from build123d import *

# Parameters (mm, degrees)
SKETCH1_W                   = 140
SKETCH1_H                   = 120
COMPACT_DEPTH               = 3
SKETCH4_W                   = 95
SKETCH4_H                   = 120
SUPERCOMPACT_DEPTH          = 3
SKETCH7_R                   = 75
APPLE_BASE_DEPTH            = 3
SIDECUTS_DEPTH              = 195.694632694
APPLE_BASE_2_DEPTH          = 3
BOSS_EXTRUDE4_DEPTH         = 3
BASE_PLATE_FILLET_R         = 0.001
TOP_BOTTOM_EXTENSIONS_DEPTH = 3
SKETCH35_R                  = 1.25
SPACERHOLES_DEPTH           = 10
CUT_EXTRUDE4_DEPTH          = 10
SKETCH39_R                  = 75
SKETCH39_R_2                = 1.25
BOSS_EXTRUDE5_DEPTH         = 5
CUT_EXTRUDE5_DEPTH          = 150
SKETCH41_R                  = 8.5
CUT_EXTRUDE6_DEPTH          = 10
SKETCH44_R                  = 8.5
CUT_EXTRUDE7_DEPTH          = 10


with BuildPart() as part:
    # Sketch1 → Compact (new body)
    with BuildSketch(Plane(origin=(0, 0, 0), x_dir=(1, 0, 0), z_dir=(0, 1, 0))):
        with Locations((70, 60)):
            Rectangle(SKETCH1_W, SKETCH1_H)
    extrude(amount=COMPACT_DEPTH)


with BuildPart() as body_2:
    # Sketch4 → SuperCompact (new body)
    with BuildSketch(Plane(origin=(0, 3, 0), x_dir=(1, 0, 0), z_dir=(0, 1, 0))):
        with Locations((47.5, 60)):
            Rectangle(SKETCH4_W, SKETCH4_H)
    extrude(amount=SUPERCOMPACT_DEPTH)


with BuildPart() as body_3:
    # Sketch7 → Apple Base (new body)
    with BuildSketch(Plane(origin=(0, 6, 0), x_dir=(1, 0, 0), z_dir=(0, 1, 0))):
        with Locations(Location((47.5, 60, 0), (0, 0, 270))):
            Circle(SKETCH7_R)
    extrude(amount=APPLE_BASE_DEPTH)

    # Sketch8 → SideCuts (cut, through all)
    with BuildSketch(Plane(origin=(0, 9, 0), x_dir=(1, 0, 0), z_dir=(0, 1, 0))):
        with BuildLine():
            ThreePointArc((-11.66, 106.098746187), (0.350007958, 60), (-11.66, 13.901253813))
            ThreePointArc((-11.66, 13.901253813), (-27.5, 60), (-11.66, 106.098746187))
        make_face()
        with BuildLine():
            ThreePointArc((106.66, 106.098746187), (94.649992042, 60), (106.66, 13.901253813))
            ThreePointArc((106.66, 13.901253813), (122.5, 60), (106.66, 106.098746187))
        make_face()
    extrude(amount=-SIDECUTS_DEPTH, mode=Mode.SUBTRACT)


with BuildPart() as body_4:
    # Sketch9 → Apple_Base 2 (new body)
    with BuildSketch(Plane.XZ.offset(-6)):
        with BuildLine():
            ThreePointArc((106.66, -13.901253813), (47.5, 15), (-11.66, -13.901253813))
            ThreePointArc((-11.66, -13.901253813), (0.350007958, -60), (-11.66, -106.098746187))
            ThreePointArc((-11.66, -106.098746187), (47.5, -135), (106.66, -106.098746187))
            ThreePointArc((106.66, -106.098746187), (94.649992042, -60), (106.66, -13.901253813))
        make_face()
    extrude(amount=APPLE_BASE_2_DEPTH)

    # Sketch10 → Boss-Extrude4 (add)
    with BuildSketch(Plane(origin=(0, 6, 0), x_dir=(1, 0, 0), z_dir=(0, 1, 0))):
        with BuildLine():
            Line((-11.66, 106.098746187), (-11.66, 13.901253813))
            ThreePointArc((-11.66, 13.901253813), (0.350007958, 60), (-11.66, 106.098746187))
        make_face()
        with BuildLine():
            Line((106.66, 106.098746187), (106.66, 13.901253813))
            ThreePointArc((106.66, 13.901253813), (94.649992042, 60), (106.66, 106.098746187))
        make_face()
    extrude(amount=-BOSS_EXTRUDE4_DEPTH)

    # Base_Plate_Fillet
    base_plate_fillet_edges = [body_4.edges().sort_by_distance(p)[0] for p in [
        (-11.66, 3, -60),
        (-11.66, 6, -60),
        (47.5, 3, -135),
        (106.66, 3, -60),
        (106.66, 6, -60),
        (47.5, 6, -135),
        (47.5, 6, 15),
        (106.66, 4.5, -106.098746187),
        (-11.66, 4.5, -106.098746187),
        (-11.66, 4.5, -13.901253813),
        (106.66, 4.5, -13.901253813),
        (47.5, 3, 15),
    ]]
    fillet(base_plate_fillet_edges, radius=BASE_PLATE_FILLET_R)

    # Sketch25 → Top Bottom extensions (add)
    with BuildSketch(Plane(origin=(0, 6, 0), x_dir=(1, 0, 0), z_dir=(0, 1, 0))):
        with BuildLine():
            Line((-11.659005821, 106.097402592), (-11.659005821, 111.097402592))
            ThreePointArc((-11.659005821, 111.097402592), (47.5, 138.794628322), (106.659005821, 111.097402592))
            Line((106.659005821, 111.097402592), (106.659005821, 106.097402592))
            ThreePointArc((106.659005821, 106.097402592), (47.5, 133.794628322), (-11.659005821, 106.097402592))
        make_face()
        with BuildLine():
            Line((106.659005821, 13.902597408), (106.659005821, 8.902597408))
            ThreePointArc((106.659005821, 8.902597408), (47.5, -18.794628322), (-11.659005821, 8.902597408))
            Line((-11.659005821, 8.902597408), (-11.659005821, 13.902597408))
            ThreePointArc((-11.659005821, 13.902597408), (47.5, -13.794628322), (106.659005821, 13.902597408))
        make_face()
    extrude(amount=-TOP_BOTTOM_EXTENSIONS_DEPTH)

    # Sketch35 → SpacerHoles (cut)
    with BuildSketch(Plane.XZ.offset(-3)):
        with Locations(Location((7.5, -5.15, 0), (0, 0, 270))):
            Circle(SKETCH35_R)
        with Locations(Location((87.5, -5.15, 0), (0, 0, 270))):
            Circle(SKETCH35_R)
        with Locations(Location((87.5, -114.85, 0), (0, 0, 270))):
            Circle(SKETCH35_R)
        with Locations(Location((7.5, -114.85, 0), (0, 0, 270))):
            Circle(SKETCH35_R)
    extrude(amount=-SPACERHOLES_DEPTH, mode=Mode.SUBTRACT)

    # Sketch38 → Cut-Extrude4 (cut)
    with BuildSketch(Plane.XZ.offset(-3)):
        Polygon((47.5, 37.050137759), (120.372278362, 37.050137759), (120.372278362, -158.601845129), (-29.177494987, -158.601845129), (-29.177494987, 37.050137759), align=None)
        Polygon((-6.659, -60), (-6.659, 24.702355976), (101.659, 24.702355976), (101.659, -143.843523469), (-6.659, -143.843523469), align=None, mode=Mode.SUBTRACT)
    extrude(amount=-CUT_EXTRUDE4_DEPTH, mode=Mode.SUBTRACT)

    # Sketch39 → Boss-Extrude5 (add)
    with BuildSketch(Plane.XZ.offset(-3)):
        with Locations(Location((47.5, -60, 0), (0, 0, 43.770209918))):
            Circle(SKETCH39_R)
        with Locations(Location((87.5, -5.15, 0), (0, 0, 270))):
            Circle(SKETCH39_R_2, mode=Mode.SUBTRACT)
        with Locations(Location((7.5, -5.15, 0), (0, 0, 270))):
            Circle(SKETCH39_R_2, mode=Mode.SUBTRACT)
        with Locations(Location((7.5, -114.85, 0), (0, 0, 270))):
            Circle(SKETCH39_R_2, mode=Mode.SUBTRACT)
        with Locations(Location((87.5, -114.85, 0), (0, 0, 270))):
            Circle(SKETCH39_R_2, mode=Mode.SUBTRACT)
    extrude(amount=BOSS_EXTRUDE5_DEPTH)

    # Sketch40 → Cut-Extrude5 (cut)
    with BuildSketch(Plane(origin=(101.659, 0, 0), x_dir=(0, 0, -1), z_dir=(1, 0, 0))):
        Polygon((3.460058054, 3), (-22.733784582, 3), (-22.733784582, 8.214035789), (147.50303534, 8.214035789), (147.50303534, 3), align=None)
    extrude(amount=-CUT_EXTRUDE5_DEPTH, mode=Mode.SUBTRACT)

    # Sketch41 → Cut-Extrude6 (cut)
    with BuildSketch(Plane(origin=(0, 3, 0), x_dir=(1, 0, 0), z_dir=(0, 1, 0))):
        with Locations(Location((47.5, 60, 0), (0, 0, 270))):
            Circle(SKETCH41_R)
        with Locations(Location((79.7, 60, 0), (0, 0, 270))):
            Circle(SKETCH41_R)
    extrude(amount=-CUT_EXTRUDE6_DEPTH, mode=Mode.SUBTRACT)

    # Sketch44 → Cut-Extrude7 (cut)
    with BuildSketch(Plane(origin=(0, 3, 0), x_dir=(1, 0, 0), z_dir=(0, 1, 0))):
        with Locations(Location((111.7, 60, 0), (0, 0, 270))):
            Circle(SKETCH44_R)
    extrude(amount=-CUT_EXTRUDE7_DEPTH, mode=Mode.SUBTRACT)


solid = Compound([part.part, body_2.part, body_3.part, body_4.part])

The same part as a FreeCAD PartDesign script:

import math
import FreeCAD as App
import Part
import Sketcher
from FreeCAD import Vector


def add_polygon(sketch, points):
    """Adds a closed chain of lines whose ends are joined by coincident constraints."""
    first, n = sketch.GeometryCount, len(points)
    for a, b in zip(points, points[1:] + points[:1]):
        sketch.addGeometry(Part.LineSegment(App.Vector(*a, 0), App.Vector(*b, 0)), False)
    for i in range(n):
        sketch.addConstraint(Sketcher.Constraint("Coincident", first + i, 2, first + (i + 1) % n, 1))

doc = App.newDocument("Part")
params = doc.addObject("Spreadsheet::Sheet", "Params")
for row, (alias, value) in enumerate([
    ("sketch1_width", "140 mm"),
    ("sketch1_height", "120 mm"),
    ("pad1_length", "3 mm"),
    ("sketch2_width", "95 mm"),
    ("sketch2_height", "120 mm"),
    ("pad2_length", "3 mm"),
    ("sketch3_diameter", "150 mm"),
    ("pad3_length", "3 mm"),
    ("sketch4_radius", "75 mm"),
    ("sketch5_radius", "75 mm"),
    ("pad4_length", "3 mm"),
    ("pad5_length", "3 mm"),
    ("fillet_radius", "0.001 mm"),
    ("sketch7_height", "5 mm"),
    ("pad6_length", "3 mm"),
    ("sketch8_diameter", "2.5 mm"),
    ("pocket2_length", "10 mm"),
    ("pocket3_length", "10 mm"),
    ("sketch10_diameter", "150 mm"),
    ("sketch10_diameter2", "2.5 mm"),
    ("pad7_length", "5 mm"),
    ("pocket4_length", "150 mm"),
    ("sketch12_diameter", "17 mm"),
    ("pocket5_length", "10 mm"),
    ("sketch13_diameter", "17 mm"),
    ("pocket6_length", "10 mm"),
], start=1):
    params.set(f"A{row}", alias)
    params.set(f"B{row}", "=" + value)
    params.setAlias(f"B{row}", alias)

body = doc.addObject("PartDesign::Body", "Body")

# Sketch on XZ plane
sketch1 = body.newObject("Sketcher::SketchObject", "Sketch")
sketch1.AttachmentSupport = (doc.getObject("XZ_Plane"), [""])
sketch1.MapMode = "FlatFace"
add_polygon(sketch1, [(0, -120), (0, 0), (140, 0), (140, -120)])  # lines 0-3
sketch1.addConstraint(Sketcher.Constraint("Vertical", 0))
sketch1.addConstraint(Sketcher.Constraint("Horizontal", 1))
sketch1.addConstraint(Sketcher.Constraint("Vertical", 2))
sketch1.addConstraint(Sketcher.Constraint("Horizontal", 3))
sketch1.addConstraint(Sketcher.Constraint("Coincident", 0, 2, -1, 1))
sketch1.addConstraint(Sketcher.Constraint("DistanceX", 1, 1, 1, 2, 140.0))
sketch1.addConstraint(Sketcher.Constraint("DistanceY", 0, 1, 0, 2, 120.0))
sketch1.setExpression("Constraints[9]", "Params.sketch1_width")
sketch1.setExpression("Constraints[10]", "Params.sketch1_height")
pad1 = body.newObject("PartDesign::Pad", "Pad")
pad1.Profile = sketch1
pad1.setExpression("Length", "Params.pad1_length")
pad1.Reversed = True
body2 = doc.addObject("PartDesign::Body", "Body001")

# Sketch on XZ plane
sketch2 = body2.newObject("Sketcher::SketchObject", "Sketch001")
sketch2.AttachmentSupport = (doc.getObject("XZ_Plane001"), [""])
sketch2.MapMode = "FlatFace"
sketch2.AttachmentOffset = App.Placement(Vector(0, 0, -3), App.Rotation())
add_polygon(sketch2, [(0, -120), (0, 0), (95, 0), (95, -120)])  # lines 0-3
sketch2.addConstraint(Sketcher.Constraint("Vertical", 0))
sketch2.addConstraint(Sketcher.Constraint("Horizontal", 1))
sketch2.addConstraint(Sketcher.Constraint("Vertical", 2))
sketch2.addConstraint(Sketcher.Constraint("Horizontal", 3))
sketch2.addConstraint(Sketcher.Constraint("Coincident", 0, 2, -1, 1))
sketch2.addConstraint(Sketcher.Constraint("DistanceX", 1, 1, 1, 2, 95.0))
sketch2.addConstraint(Sketcher.Constraint("DistanceY", 0, 1, 0, 2, 120.0))
sketch2.setExpression("Constraints[9]", "Params.sketch2_width")
sketch2.setExpression("Constraints[10]", "Params.sketch2_height")
pad2 = body2.newObject("PartDesign::Pad", "Pad001")
pad2.Profile = sketch2
pad2.setExpression("Length", "Params.pad2_length")
pad2.Reversed = True
body3 = doc.addObject("PartDesign::Body", "Body002")

# Sketch on XZ plane
sketch3 = body3.newObject("Sketcher::SketchObject", "Sketch002")
sketch3.AttachmentSupport = (doc.getObject("XZ_Plane002"), [""])
sketch3.MapMode = "FlatFace"
sketch3.AttachmentOffset = App.Placement(Vector(0, 0, -6), App.Rotation())
sketch3.addGeometry(Part.Circle(Vector(48, -60, 0), Vector(0, 0, 1), 75), False)
sketch3.addConstraint(Sketcher.Constraint("Diameter", 0, 150.0))
sketch3.addConstraint(Sketcher.Constraint("DistanceY", 0, 3, -1, 1, 60.0))
sketch3.addConstraint(Sketcher.Constraint("DistanceX", -1, 1, 0, 3, 47.5))
sketch3.setExpression("Constraints[0]", "Params.sketch3_diameter")
pad3 = body3.newObject("PartDesign::Pad", "Pad002")
pad3.Profile = sketch3
pad3.setExpression("Length", "Params.pad3_length")
pad3.Reversed = True

# Sketch on XZ plane
sketch4 = body3.newObject("Sketcher::SketchObject", "Sketch003")
sketch4.AttachmentSupport = (doc.getObject("XZ_Plane002"), [""])
sketch4.MapMode = "FlatFace"
sketch4.AttachmentOffset = App.Placement(Vector(0, 0, -9), App.Rotation())
sketch4.addGeometry(Part.ArcOfCircle(Part.Circle(Vector(-94, -60, 0), Vector(0, 0, 1), 94), math.radians(-29), math.radians(29)), False)
sketch4.addGeometry(Part.ArcOfCircle(Part.Circle(Vector(48, -60, 0), Vector(0, 0, 1), 75), math.radians(142), math.radians(218)), False)
sketch4.addGeometry(Part.ArcOfCircle(Part.Circle(Vector(189, -60, 0), Vector(0, 0, 1), 94), math.radians(151), math.radians(209)), False)
sketch4.addGeometry(Part.ArcOfCircle(Part.Circle(Vector(48, -60, 0), Vector(0, 0, 1), 75), math.radians(-38), math.radians(38)), False)
sketch4.addConstraint(Sketcher.Constraint("Coincident", 0, 1, 1, 2))
sketch4.addConstraint(Sketcher.Constraint("Coincident", 1, 1, 0, 2))
sketch4.addConstraint(Sketcher.Constraint("Coincident", 2, 1, 3, 2))
sketch4.addConstraint(Sketcher.Constraint("Coincident", 3, 1, 2, 2))
sketch4.addConstraint(Sketcher.Constraint("Coincident", 3, 3, 1, 3))
sketch4.addConstraint(Sketcher.Constraint("Equal", 0, 2))
sketch4.addConstraint(Sketcher.Constraint("Equal", 1, 3))
sketch4.addConstraint(Sketcher.Constraint("Horizontal", 0, 3, 1, 3))
sketch4.addConstraint(Sketcher.Constraint("Horizontal", 1, 3, 2, 3))
sketch4.addConstraint(Sketcher.Constraint("Horizontal", 1, 1, 2, 1))
sketch4.addConstraint(Sketcher.Constraint("Radius", 1, 75.0))
sketch4.addConstraint(Sketcher.Constraint("DistanceY", 0, 3, -1, 1, 60.0))
sketch4.addConstraint(Sketcher.Constraint("DistanceX", -1, 1, 1, 3, 47.5))
sketch4.addConstraint(Sketcher.Constraint("DistanceX", 0, 1, -1, 1, 11.66))
sketch4.addConstraint(Sketcher.Constraint("Radius", 0, 94.476819))
sketch4.setExpression("Constraints[10]", "Params.sketch4_radius")
pocket1 = body3.newObject("PartDesign::Pocket", "Pocket")
pocket1.Profile = sketch4
pocket1.Type = "ThroughAll"
pocket1.Reversed = True
body4 = doc.addObject("PartDesign::Body", "Body003")

# Sketch on XZ plane
sketch5 = body4.newObject("Sketcher::SketchObject", "Sketch004")
sketch5.AttachmentSupport = (doc.getObject("XZ_Plane003"), [""])
sketch5.MapMode = "FlatFace"
sketch5.AttachmentOffset = App.Placement(Vector(0, 0, -6), App.Rotation())
sketch5.addGeometry(Part.ArcOfCircle(Part.Circle(Vector(48, -60, 0), Vector(0, 0, 1), 75), math.radians(38), math.radians(142)), False)
sketch5.addGeometry(Part.ArcOfCircle(Part.Circle(Vector(-94, -60, 0), Vector(0, 0, 1), 94), math.radians(-29), math.radians(29)), False)
sketch5.addGeometry(Part.ArcOfCircle(Part.Circle(Vector(48, -60, 0), Vector(0, 0, 1), 75), math.radians(-142), math.radians(-38)), False)
sketch5.addGeometry(Part.ArcOfCircle(Part.Circle(Vector(189, -60, 0), Vector(0, 0, 1), 94), math.radians(151), math.radians(209)), False)
sketch5.addConstraint(Sketcher.Constraint("Coincident", 0, 2, 1, 2))
sketch5.addConstraint(Sketcher.Constraint("Coincident", 1, 1, 2, 1))
sketch5.addConstraint(Sketcher.Constraint("Coincident", 2, 2, 3, 2))
sketch5.addConstraint(Sketcher.Constraint("Coincident", 3, 1, 0, 1))
sketch5.addConstraint(Sketcher.Constraint("Coincident", 2, 3, 0, 3))
sketch5.addConstraint(Sketcher.Constraint("Equal", 0, 2))
sketch5.addConstraint(Sketcher.Constraint("Equal", 1, 3))
sketch5.addConstraint(Sketcher.Constraint("Horizontal", 0, 3, 1, 3))
sketch5.addConstraint(Sketcher.Constraint("Horizontal", 2, 3, 3, 3))
sketch5.addConstraint(Sketcher.Constraint("Horizontal", 1, 1, 2, 2))
sketch5.addConstraint(Sketcher.Constraint("Radius", 0, 75.0))
sketch5.addConstraint(Sketcher.Constraint("DistanceY", 0, 3, -1, 1, 60.0))
sketch5.addConstraint(Sketcher.Constraint("DistanceX", -1, 1, 0, 3, 47.5))
sketch5.addConstraint(Sketcher.Constraint("DistanceX", 0, 2, -1, 1, 11.66))
sketch5.addConstraint(Sketcher.Constraint("Radius", 1, 94.476819))
sketch5.setExpression("Constraints[10]", "Params.sketch5_radius")
pad4 = body4.newObject("PartDesign::Pad", "Pad003")
pad4.Profile = sketch5
pad4.setExpression("Length", "Params.pad4_length")

# Sketch on XZ plane
sketch6 = body4.newObject("Sketcher::SketchObject", "Sketch005")
sketch6.AttachmentSupport = (doc.getObject("XZ_Plane003"), [""])
sketch6.MapMode = "FlatFace"
sketch6.AttachmentOffset = App.Placement(Vector(0, 0, -6), App.Rotation())
sketch6.addGeometry(Part.LineSegment(Vector(-12, -106, 0), Vector(-12, -14, 0)), False)
sketch6.addGeometry(Part.ArcOfCircle(Part.Circle(Vector(-94, -60, 0), Vector(0, 0, 1), 94), math.radians(-29), math.radians(29)), False)
sketch6.addGeometry(Part.LineSegment(Vector(107, -14, 0), Vector(107, -106, 0)), False)
sketch6.addGeometry(Part.ArcOfCircle(Part.Circle(Vector(189, -60, 0), Vector(0, 0, 1), 94), math.radians(151), math.radians(209)), False)
sketch6.addConstraint(Sketcher.Constraint("Coincident", 0, 1, 1, 1))
sketch6.addConstraint(Sketcher.Constraint("Coincident", 1, 2, 0, 2))
sketch6.addConstraint(Sketcher.Constraint("Coincident", 2, 1, 3, 1))
sketch6.addConstraint(Sketcher.Constraint("Coincident", 3, 2, 2, 2))
sketch6.addConstraint(Sketcher.Constraint("Vertical", 0))
sketch6.addConstraint(Sketcher.Constraint("Vertical", 2))
sketch6.addConstraint(Sketcher.Constraint("Equal", 1, 3))
sketch6.addConstraint(Sketcher.Constraint("Horizontal", 1, 3, 3, 3))
sketch6.addConstraint(Sketcher.Constraint("Horizontal", 1, 2, 2, 1))
sketch6.addConstraint(Sketcher.Constraint("DistanceY", 1, 3, -1, 1, 60.0))
sketch6.addConstraint(Sketcher.Constraint("DistanceX", 0, 1, -1, 1, 11.66))
sketch6.addConstraint(Sketcher.Constraint("DistanceX", -1, 1, 2, 1, 106.66))
sketch6.addConstraint(Sketcher.Constraint("Radius", 1, 94.476819))
sketch6.addConstraint(Sketcher.Constraint("DistanceY", 0, 1, 0, 2, 92.197492))
pad5 = body4.newObject("PartDesign::Pad", "Pad004")
pad5.Profile = sketch6
pad5.setExpression("Length", "Params.pad5_length")
doc.recompute()

fillet = body4.newObject("PartDesign::Fillet", "Fillet")
fillet.Base = (pad5, ["Edge1"])
fillet.UseAllEdges = True
fillet.setExpression("Radius", "Params.fillet_radius")

# Sketch on XZ plane
sketch7 = body4.newObject("Sketcher::SketchObject", "Sketch006")
sketch7.AttachmentSupport = (doc.getObject("XZ_Plane003"), [""])
sketch7.MapMode = "FlatFace"
sketch7.AttachmentOffset = App.Placement(Vector(0, 0, -6), App.Rotation())
sketch7.addGeometry(Part.LineSegment(Vector(-12, -111, 0), Vector(-12, -106, 0)), False)
sketch7.addGeometry(Part.ArcOfCircle(Part.Circle(Vector(48, -57, 0), Vector(0, 0, 1), 77), math.radians(-140), math.radians(-40)), False)
sketch7.addGeometry(Part.LineSegment(Vector(107, -106, 0), Vector(107, -111, 0)), False)
sketch7.addGeometry(Part.ArcOfCircle(Part.Circle(Vector(48, -62, 0), Vector(0, 0, 1), 77), math.radians(-140), math.radians(-40)), False)
sketch7.addGeometry(Part.LineSegment(Vector(107, -9, 0), Vector(107, -14, 0)), False)
sketch7.addGeometry(Part.ArcOfCircle(Part.Circle(Vector(48, -63, 0), Vector(0, 0, 1), 77), math.radians(40), math.radians(140)), False)
sketch7.addGeometry(Part.LineSegment(Vector(-12, -14, 0), Vector(-12, -9, 0)), False)
sketch7.addGeometry(Part.ArcOfCircle(Part.Circle(Vector(48, -58, 0), Vector(0, 0, 1), 77), math.radians(40), math.radians(140)), False)
sketch7.addConstraint(Sketcher.Constraint("Coincident", 0, 2, 1, 1))
sketch7.addConstraint(Sketcher.Constraint("Coincident", 1, 2, 2, 1))
sketch7.addConstraint(Sketcher.Constraint("Coincident", 2, 2, 3, 2))
sketch7.addConstraint(Sketcher.Constraint("Coincident", 3, 1, 0, 1))
sketch7.addConstraint(Sketcher.Constraint("Coincident", 4, 2, 5, 1))
sketch7.addConstraint(Sketcher.Constraint("Coincident", 5, 2, 6, 1))
sketch7.addConstraint(Sketcher.Constraint("Coincident", 6, 2, 7, 2))
sketch7.addConstraint(Sketcher.Constraint("Coincident", 7, 1, 4, 1))
sketch7.addConstraint(Sketcher.Constraint("Vertical", 0))
sketch7.addConstraint(Sketcher.Constraint("Vertical", 2))
sketch7.addConstraint(Sketcher.Constraint("Vertical", 4))
sketch7.addConstraint(Sketcher.Constraint("Vertical", 6))
sketch7.addConstraint(Sketcher.Constraint("Equal", 1, 3))
sketch7.addConstraint(Sketcher.Constraint("Equal", 3, 5))
sketch7.addConstraint(Sketcher.Constraint("Equal", 5, 7))
sketch7.addConstraint(Sketcher.Constraint("Horizontal", 0, 2, 1, 2))
sketch7.addConstraint(Sketcher.Constraint("Horizontal", 2, 2, 3, 1))
sketch7.addConstraint(Sketcher.Constraint("Horizontal", 4, 2, 5, 2))
sketch7.addConstraint(Sketcher.Constraint("Horizontal", 6, 2, 7, 1))
sketch7.addConstraint(Sketcher.Constraint("Vertical", 3, 3, 5, 3))
sketch7.addConstraint(Sketcher.Constraint("Vertical", 2, 2, 4, 2))
sketch7.addConstraint(Sketcher.Constraint("Equal", 2, 4))
sketch7.addConstraint(Sketcher.Constraint("DistanceY", 0, 1, 0, 2, 5.0))
sketch7.addConstraint(Sketcher.Constraint("DistanceX", -1, 1, 1, 3, 47.5))
sketch7.addConstraint(Sketcher.Constraint("Radius", 1, 77.028009))
sketch7.addConstraint(Sketcher.Constraint("DistanceY", 1, 3, -1, 1, 56.76662))
sketch7.addConstraint(Sketcher.Constraint("DistanceY", 5, 3, -1, 1, 63.23338))
sketch7.addConstraint(Sketcher.Constraint("DistanceX", 0, 2, 1, 2, 118.318012))
sketch7.setExpression("Constraints[22]", "Params.sketch7_height")
pad6 = body4.newObject("PartDesign::Pad", "Pad005")
pad6.Profile = sketch7
pad6.setExpression("Length", "Params.pad6_length")

# Sketch on XZ plane
sketch8 = body4.newObject("Sketcher::SketchObject", "Sketch007")
sketch8.AttachmentSupport = (doc.getObject("XZ_Plane003"), [""])
sketch8.MapMode = "FlatFace"
sketch8.AttachmentOffset = App.Placement(Vector(0, 0, -3), App.Rotation())
sketch8.addGeometry(Part.Circle(Vector(7.5, -5.2, 0), Vector(0, 0, 1), 1.2), False)
sketch8.addGeometry(Part.Circle(Vector(87.5, -5.2, 0), Vector(0, 0, 1), 1.2), False)
sketch8.addGeometry(Part.Circle(Vector(87.5, -114.8, 0), Vector(0, 0, 1), 1.2), False)
sketch8.addGeometry(Part.Circle(Vector(7.5, -114.8, 0), Vector(0, 0, 1), 1.2), False)
sketch8.addConstraint(Sketcher.Constraint("Equal", 0, 1))
sketch8.addConstraint(Sketcher.Constraint("Equal", 1, 2))
sketch8.addConstraint(Sketcher.Constraint("Equal", 2, 3))
sketch8.addConstraint(Sketcher.Constraint("Horizontal", 0, 3, 1, 3))
sketch8.addConstraint(Sketcher.Constraint("Horizontal", 2, 3, 3, 3))
sketch8.addConstraint(Sketcher.Constraint("Vertical", 1, 3, 2, 3))
sketch8.addConstraint(Sketcher.Constraint("Vertical", 0, 3, 3, 3))
sketch8.addConstraint(Sketcher.Constraint("Diameter", 0, 2.5))
sketch8.addConstraint(Sketcher.Constraint("DistanceX", 0, 3, 1, 3, 80.0))
sketch8.addConstraint(Sketcher.Constraint("DistanceX", -1, 1, 0, 3, 7.5))
sketch8.addConstraint(Sketcher.Constraint("DistanceY", 2, 3, 1, 3, 109.7))
sketch8.addConstraint(Sketcher.Constraint("DistanceY", 0, 3, -1, 1, 5.15))
sketch8.setExpression("Constraints[7]", "Params.sketch8_diameter")
pocket2 = body4.newObject("PartDesign::Pocket", "Pocket001")
pocket2.Profile = sketch8
pocket2.setExpression("Length", "Params.pocket2_length")

# Sketch on XZ plane
sketch9 = body4.newObject("Sketcher::SketchObject", "Sketch008")
sketch9.AttachmentSupport = (doc.getObject("XZ_Plane003"), [""])
sketch9.MapMode = "FlatFace"
sketch9.AttachmentOffset = App.Placement(Vector(0, 0, -3), App.Rotation())
add_polygon(sketch9, [(120, 37), (-29, 37), (-29, -159), (120, -159)])  # lines 0-3
add_polygon(sketch9, [(-7, 25), (102, 25), (102, -144), (-7, -144)])  # lines 4-7
sketch9.addConstraint(Sketcher.Constraint("Horizontal", 0))
sketch9.addConstraint(Sketcher.Constraint("Vertical", 1))
sketch9.addConstraint(Sketcher.Constraint("Horizontal", 2))
sketch9.addConstraint(Sketcher.Constraint("Vertical", 3))
sketch9.addConstraint(Sketcher.Constraint("Horizontal", 4))
sketch9.addConstraint(Sketcher.Constraint("Vertical", 5))
sketch9.addConstraint(Sketcher.Constraint("Horizontal", 6))
sketch9.addConstraint(Sketcher.Constraint("Vertical", 7))
sketch9.addConstraint(Sketcher.Constraint("DistanceX", 4, 1, 4, 2, 108.318))
sketch9.addConstraint(Sketcher.Constraint("DistanceX", -1, 1, 4, 2, 101.659))
sketch9.addConstraint(Sketcher.Constraint("DistanceY", 5, 2, 5, 1, 168.545879))
sketch9.addConstraint(Sketcher.Constraint("DistanceY", 2, 2, 4, 2, 183.304201))
sketch9.addConstraint(Sketcher.Constraint("DistanceX", 0, 2, 0, 1, 149.549773))
sketch9.addConstraint(Sketcher.Constraint("DistanceY", 1, 2, 1, 1, 195.651983))
sketch9.addConstraint(Sketcher.Constraint("DistanceX", -1, 1, 2, 2, 120.372278))
sketch9.addConstraint(Sketcher.Constraint("DistanceY", -1, 1, 0, 2, 37.050138))
pocket3 = body4.newObject("PartDesign::Pocket", "Pocket002")
pocket3.Profile = sketch9
pocket3.setExpression("Length", "Params.pocket3_length")

# Sketch on XZ plane
sketch10 = body4.newObject("Sketcher::SketchObject", "Sketch009")
sketch10.AttachmentSupport = (doc.getObject("XZ_Plane003"), [""])
sketch10.MapMode = "FlatFace"
sketch10.AttachmentOffset = App.Placement(Vector(0, 0, -3), App.Rotation())
sketch10.addGeometry(Part.Circle(Vector(47.5, -60, 0), Vector(0, 0, 1), 75), False)
sketch10.addGeometry(Part.Circle(Vector(87.5, -114.8, 0), Vector(0, 0, 1), 1.2), False)
sketch10.addGeometry(Part.Circle(Vector(7.5, -114.8, 0), Vector(0, 0, 1), 1.2), False)
sketch10.addGeometry(Part.Circle(Vector(87.5, -5.2, 0), Vector(0, 0, 1), 1.2), False)
sketch10.addGeometry(Part.Circle(Vector(7.5, -5.2, 0), Vector(0, 0, 1), 1.2), False)
sketch10.addConstraint(Sketcher.Constraint("Equal", 1, 2))
sketch10.addConstraint(Sketcher.Constraint("Equal", 2, 3))
sketch10.addConstraint(Sketcher.Constraint("Equal", 3, 4))
sketch10.addConstraint(Sketcher.Constraint("Horizontal", 1, 3, 2, 3))
sketch10.addConstraint(Sketcher.Constraint("Horizontal", 3, 3, 4, 3))
sketch10.addConstraint(Sketcher.Constraint("Vertical", 1, 3, 3, 3))
sketch10.addConstraint(Sketcher.Constraint("Vertical", 2, 3, 4, 3))
sketch10.addConstraint(Sketcher.Constraint("Diameter", 0, 150.0))
sketch10.addConstraint(Sketcher.Constraint("Diameter", 1, 2.5))
sketch10.addConstraint(Sketcher.Constraint("DistanceY", 0, 3, -1, 1, 60.0))
sketch10.addConstraint(Sketcher.Constraint("DistanceX", 0, 3, 1, 3, 40.0))
sketch10.addConstraint(Sketcher.Constraint("DistanceX", 2, 3, 0, 3, 40.0))
sketch10.addConstraint(Sketcher.Constraint("DistanceX", -1, 1, 0, 3, 47.5))
sketch10.addConstraint(Sketcher.Constraint("DistanceY", 1, 3, 3, 3, 109.7))
sketch10.addConstraint(Sketcher.Constraint("DistanceY", 1, 3, -1, 1, 114.85))
sketch10.setExpression("Constraints[7]", "Params.sketch10_diameter")
sketch10.setExpression("Constraints[8]", "Params.sketch10_diameter2")
pad7 = body4.newObject("PartDesign::Pad", "Pad006")
pad7.Profile = sketch10
pad7.setExpression("Length", "Params.pad7_length")

# Sketch on YZ plane
sketch11 = body4.newObject("Sketcher::SketchObject", "Sketch010")
sketch11.AttachmentSupport = (doc.getObject("YZ_Plane003"), [""])
sketch11.MapMode = "FlatFace"
sketch11.AttachmentOffset = App.Placement(Vector(0, 0, 101.659), App.Rotation())
add_polygon(sketch11, [(3, 23), (3, -148), (8, -148), (8, 23)])  # lines 0-3
sketch11.addConstraint(Sketcher.Constraint("Vertical", 0))
sketch11.addConstraint(Sketcher.Constraint("Horizontal", 1))
sketch11.addConstraint(Sketcher.Constraint("Vertical", 2))
sketch11.addConstraint(Sketcher.Constraint("Horizontal", 3))
sketch11.addConstraint(Sketcher.Constraint("DistanceX", -1, 1, 0, 2, 3.0))
sketch11.addConstraint(Sketcher.Constraint("DistanceY", 0, 2, 0, 1, 170.23682))
sketch11.addConstraint(Sketcher.Constraint("DistanceX", 1, 1, 1, 2, 5.214036))
sketch11.addConstraint(Sketcher.Constraint("DistanceY", 0, 2, -1, 1, 147.503035))
pocket4 = body4.newObject("PartDesign::Pocket", "Pocket003")
pocket4.Profile = sketch11
pocket4.setExpression("Length", "Params.pocket4_length")

# Sketch on XZ plane
sketch12 = body4.newObject("Sketcher::SketchObject", "Sketch011")
sketch12.AttachmentSupport = (doc.getObject("XZ_Plane003"), [""])
sketch12.MapMode = "FlatFace"
sketch12.AttachmentOffset = App.Placement(Vector(0, 0, -3), App.Rotation())
sketch12.addGeometry(Part.Circle(Vector(48, -60, 0), Vector(0, 0, 1), 8), False)
sketch12.addGeometry(Part.Circle(Vector(80, -60, 0), Vector(0, 0, 1), 8), False)
sketch12.addConstraint(Sketcher.Constraint("Equal", 0, 1))
sketch12.addConstraint(Sketcher.Constraint("Horizontal", 0, 3, 1, 3))
sketch12.addConstraint(Sketcher.Constraint("Diameter", 0, 17.0))
sketch12.addConstraint(Sketcher.Constraint("DistanceY", 0, 3, -1, 1, 60.0))
sketch12.addConstraint(Sketcher.Constraint("DistanceX", -1, 1, 0, 3, 47.5))
sketch12.addConstraint(Sketcher.Constraint("DistanceX", -1, 1, 1, 3, 79.7))
sketch12.setExpression("Constraints[2]", "Params.sketch12_diameter")
pocket5 = body4.newObject("PartDesign::Pocket", "Pocket004")
pocket5.Profile = sketch12
pocket5.setExpression("Length", "Params.pocket5_length")
pocket5.Reversed = True

# Sketch on XZ plane
sketch13 = body4.newObject("Sketcher::SketchObject", "Sketch012")
sketch13.AttachmentSupport = (doc.getObject("XZ_Plane003"), [""])
sketch13.MapMode = "FlatFace"
sketch13.AttachmentOffset = App.Placement(Vector(0, 0, -3), App.Rotation())
sketch13.addGeometry(Part.Circle(Vector(112, -60, 0), Vector(0, 0, 1), 8), False)
sketch13.addConstraint(Sketcher.Constraint("Diameter", 0, 17.0))
sketch13.addConstraint(Sketcher.Constraint("DistanceY", 0, 3, -1, 1, 60.0))
sketch13.addConstraint(Sketcher.Constraint("DistanceX", -1, 1, 0, 3, 111.7))
sketch13.setExpression("Constraints[0]", "Params.sketch13_diameter")
pocket6 = body4.newObject("PartDesign::Pocket", "Pocket005")
pocket6.Profile = sketch13
pocket6.setExpression("Length", "Params.pocket6_length")
pocket6.Reversed = True

doc.recompute()
